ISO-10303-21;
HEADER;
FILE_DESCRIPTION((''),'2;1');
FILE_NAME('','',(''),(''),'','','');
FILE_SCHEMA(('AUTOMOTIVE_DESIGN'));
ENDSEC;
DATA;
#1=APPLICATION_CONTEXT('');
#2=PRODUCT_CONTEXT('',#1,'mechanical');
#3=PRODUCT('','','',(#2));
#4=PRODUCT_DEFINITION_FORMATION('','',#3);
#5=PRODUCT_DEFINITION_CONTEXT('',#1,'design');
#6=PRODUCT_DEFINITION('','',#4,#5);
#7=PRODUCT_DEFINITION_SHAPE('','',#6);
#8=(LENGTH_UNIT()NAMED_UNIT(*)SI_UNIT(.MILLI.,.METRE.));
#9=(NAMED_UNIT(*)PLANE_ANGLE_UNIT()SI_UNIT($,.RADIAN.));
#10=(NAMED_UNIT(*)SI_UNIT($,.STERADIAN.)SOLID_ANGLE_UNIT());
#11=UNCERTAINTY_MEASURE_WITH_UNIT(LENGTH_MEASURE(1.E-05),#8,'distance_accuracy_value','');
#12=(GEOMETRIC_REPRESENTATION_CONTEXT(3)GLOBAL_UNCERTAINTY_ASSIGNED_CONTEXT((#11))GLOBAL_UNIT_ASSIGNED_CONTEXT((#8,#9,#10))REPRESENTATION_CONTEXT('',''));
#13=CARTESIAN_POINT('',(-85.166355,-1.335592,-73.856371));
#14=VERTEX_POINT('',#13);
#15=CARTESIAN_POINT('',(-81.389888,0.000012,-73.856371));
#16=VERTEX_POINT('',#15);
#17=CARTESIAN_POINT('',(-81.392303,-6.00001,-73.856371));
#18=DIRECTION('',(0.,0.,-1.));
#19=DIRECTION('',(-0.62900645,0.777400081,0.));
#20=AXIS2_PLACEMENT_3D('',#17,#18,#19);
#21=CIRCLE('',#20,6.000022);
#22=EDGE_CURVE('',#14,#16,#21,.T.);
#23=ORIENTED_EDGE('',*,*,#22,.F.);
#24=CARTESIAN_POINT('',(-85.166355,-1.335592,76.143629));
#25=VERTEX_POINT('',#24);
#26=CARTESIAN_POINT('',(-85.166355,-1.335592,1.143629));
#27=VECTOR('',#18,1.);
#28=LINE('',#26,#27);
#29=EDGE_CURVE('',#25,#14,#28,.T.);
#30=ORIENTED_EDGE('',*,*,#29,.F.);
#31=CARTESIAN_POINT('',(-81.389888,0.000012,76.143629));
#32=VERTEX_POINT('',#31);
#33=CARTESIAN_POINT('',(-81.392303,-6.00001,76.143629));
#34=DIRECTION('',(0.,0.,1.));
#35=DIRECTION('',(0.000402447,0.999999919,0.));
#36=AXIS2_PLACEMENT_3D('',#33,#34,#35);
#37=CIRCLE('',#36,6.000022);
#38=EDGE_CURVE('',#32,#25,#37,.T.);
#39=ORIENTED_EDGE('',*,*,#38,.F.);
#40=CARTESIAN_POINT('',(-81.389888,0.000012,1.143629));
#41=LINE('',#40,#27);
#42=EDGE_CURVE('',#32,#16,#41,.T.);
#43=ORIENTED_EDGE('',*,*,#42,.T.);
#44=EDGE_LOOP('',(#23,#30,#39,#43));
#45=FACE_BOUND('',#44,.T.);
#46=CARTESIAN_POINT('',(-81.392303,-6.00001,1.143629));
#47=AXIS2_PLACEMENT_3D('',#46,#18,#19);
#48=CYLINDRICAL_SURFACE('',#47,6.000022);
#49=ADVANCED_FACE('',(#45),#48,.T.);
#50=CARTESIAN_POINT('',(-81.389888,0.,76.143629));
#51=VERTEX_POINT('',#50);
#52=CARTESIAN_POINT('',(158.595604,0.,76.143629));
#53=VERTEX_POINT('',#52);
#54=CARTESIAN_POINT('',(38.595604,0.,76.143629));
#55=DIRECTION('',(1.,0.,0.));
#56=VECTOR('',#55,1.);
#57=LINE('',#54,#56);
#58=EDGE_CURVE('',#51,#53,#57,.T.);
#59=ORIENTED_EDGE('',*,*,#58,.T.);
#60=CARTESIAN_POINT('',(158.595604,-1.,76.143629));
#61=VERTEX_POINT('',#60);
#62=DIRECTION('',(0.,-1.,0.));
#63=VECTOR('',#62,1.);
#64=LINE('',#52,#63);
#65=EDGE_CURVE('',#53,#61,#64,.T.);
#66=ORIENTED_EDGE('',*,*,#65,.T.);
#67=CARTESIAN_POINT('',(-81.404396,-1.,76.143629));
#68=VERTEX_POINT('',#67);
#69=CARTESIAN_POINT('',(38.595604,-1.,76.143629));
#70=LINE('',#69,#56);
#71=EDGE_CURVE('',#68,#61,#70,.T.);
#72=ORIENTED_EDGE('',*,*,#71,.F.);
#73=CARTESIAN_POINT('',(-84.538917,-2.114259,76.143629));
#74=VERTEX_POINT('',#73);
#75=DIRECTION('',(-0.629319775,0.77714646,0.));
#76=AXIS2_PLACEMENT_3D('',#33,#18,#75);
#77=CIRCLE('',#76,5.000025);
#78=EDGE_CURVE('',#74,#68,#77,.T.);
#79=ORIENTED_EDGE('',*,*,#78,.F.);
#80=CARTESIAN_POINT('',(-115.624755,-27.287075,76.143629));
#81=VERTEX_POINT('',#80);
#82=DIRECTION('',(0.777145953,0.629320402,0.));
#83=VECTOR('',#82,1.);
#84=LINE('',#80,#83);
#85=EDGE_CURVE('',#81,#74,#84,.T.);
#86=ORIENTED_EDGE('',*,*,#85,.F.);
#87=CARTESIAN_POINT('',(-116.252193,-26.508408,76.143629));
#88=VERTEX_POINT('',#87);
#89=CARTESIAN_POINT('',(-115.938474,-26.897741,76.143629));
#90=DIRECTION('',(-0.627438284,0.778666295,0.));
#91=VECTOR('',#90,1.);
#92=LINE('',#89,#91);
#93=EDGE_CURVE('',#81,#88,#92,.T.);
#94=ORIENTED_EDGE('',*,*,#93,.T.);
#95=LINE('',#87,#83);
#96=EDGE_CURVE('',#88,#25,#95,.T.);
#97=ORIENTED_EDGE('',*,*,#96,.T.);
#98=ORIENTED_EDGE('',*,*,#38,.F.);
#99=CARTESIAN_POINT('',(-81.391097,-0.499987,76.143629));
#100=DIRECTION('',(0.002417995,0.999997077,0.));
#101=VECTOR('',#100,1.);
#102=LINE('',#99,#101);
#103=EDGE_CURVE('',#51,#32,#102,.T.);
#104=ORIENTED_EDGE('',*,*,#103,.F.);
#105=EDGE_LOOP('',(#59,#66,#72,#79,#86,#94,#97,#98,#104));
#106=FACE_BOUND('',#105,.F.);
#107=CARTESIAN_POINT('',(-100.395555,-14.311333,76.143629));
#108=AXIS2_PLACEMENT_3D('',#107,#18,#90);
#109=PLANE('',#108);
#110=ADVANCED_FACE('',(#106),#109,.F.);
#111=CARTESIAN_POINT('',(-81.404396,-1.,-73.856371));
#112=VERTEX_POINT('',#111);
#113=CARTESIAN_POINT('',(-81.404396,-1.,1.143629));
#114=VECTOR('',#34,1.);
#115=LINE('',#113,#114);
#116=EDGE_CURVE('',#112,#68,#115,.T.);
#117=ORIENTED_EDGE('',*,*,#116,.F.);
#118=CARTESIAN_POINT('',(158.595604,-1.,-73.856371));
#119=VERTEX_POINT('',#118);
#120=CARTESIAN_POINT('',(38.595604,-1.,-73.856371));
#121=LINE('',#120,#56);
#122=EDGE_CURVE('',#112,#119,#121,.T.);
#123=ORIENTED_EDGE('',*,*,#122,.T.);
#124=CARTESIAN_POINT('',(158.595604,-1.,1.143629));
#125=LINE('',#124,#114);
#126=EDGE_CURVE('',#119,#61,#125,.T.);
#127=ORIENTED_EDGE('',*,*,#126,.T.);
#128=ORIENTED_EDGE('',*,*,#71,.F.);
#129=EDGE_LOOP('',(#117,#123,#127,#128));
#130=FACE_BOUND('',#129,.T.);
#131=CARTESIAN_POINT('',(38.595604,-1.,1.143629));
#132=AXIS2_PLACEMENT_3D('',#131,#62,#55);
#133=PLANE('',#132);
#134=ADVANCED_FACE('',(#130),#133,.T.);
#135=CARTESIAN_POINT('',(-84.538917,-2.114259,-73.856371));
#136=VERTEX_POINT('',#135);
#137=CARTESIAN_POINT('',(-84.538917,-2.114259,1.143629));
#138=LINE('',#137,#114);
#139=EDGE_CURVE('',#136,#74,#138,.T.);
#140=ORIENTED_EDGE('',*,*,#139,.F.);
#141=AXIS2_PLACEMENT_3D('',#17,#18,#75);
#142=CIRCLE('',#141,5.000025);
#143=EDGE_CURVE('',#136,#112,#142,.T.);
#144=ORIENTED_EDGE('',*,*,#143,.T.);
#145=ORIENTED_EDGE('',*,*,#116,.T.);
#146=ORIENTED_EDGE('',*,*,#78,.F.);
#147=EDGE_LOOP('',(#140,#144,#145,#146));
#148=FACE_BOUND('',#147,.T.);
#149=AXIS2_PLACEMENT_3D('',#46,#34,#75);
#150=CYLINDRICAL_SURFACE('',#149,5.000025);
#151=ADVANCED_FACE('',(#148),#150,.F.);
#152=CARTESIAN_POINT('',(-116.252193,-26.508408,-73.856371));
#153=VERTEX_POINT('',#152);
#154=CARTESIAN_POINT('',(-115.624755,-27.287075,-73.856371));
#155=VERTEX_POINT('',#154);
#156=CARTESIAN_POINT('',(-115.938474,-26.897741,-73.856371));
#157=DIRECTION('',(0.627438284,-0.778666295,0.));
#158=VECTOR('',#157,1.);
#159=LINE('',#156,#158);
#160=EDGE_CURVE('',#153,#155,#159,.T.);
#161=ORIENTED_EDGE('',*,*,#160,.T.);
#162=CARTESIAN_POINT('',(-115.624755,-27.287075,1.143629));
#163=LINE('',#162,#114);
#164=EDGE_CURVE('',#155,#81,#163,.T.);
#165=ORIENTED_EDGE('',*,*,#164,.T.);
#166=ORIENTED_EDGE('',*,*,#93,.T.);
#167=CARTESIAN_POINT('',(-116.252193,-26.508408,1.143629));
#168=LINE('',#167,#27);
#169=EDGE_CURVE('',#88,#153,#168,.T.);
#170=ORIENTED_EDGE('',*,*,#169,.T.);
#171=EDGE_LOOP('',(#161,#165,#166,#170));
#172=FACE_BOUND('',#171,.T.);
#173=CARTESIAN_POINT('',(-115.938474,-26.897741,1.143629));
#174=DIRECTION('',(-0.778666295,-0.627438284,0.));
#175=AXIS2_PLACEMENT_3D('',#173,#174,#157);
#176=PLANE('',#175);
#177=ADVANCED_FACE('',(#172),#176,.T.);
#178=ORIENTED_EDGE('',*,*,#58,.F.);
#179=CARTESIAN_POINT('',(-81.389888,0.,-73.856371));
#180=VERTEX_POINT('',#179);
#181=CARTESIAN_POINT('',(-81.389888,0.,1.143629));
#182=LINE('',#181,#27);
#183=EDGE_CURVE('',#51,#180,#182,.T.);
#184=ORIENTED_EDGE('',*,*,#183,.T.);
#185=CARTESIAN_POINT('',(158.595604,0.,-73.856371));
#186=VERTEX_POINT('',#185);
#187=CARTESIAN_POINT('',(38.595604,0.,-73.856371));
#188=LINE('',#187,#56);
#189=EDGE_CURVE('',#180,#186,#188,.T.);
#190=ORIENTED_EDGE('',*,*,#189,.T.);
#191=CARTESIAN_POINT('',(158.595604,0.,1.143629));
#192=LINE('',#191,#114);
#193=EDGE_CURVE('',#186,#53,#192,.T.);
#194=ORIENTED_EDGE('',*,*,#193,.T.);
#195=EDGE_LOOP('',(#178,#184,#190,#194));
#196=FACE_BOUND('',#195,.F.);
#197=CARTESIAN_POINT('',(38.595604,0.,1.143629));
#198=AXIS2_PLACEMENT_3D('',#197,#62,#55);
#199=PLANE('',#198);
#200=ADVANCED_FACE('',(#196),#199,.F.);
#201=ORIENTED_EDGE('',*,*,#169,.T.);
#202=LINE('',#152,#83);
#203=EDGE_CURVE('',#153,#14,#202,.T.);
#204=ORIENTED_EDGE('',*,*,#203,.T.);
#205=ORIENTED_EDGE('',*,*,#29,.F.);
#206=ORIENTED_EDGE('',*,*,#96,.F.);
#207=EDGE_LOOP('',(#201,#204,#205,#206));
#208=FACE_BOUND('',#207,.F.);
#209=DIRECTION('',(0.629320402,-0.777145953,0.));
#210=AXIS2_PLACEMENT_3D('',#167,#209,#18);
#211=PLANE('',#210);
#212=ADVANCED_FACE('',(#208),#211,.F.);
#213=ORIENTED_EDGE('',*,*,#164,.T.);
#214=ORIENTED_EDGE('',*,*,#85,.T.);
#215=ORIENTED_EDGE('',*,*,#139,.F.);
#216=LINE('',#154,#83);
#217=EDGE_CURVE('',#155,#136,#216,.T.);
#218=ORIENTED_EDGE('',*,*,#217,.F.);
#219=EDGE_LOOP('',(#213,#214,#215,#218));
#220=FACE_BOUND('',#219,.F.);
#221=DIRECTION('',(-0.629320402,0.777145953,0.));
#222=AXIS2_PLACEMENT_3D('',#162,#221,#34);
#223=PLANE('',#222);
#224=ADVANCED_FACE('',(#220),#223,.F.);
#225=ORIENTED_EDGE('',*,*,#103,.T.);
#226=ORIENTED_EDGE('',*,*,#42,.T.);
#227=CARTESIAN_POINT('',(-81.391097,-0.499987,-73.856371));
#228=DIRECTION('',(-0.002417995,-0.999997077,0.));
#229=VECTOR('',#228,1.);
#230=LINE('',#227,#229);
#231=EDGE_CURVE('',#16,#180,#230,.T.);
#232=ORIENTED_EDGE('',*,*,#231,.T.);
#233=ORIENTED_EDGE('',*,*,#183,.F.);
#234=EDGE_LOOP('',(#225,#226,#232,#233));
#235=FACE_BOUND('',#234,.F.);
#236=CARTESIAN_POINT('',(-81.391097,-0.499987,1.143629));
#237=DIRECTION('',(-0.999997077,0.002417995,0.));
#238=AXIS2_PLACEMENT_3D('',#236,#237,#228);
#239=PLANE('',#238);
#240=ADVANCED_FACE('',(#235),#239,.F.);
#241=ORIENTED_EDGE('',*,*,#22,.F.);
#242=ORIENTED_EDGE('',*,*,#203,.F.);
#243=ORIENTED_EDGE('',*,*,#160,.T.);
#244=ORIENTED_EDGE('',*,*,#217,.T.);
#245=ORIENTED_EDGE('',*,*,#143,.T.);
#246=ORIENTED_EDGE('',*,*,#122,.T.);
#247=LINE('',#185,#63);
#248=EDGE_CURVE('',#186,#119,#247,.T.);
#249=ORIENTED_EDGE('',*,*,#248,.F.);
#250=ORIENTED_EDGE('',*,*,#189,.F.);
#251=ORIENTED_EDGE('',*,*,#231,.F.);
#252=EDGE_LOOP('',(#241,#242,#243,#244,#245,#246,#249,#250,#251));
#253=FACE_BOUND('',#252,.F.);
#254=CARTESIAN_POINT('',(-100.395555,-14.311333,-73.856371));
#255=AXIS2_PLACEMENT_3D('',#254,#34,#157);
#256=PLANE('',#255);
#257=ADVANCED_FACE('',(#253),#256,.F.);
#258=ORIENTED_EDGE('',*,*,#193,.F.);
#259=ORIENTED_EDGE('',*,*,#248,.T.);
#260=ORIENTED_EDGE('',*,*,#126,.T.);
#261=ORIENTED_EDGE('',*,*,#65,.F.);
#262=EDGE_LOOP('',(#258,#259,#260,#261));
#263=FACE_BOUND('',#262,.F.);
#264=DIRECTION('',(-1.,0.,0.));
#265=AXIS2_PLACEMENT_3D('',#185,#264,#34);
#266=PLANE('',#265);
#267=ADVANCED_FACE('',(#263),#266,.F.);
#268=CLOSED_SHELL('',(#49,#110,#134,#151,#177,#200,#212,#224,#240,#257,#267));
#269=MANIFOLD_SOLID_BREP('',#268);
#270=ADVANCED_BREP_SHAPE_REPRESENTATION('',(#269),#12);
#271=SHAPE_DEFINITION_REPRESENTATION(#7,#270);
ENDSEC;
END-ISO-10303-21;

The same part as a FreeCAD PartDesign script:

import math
import FreeCAD as App
import Part
import Sketcher
from FreeCAD import Vector
Q = App.Units.Quantity

doc = App.newDocument("Part")
body = doc.addObject("PartDesign::Body", "Body")

sketch1 = body.newObject("Sketcher::SketchObject", "Sketch")
sketch1.AttachmentSupport = (doc.getObject("XZ_Plane"), [""])
sketch1.MapMode = "FlatFace"
sketch1.addGeometry([
    Part.LineSegment(Vector(-81, 76, 0), Vector(-81, -74, 0)),
    Part.LineSegment(Vector(-81, -74, 0), Vector(159, -74, 0)),
    Part.LineSegment(Vector(159, -74, 0), Vector(159, 76, 0)),
    Part.LineSegment(Vector(159, 76, 0), Vector(-81, 76, 0)),
], False)
sketch1.addConstraint([
    Sketcher.Constraint("Coincident", 0, 2, 1, 1),
    Sketcher.Constraint("Coincident", 1, 2, 2, 1),
    Sketcher.Constraint("Coincident", 2, 2, 3, 1),
    Sketcher.Constraint("Coincident", 3, 2, 0, 1),
    Sketcher.Constraint("Vertical", 0),
    Sketcher.Constraint("Horizontal", 1),
    Sketcher.Constraint("Vertical", 2),
    Sketcher.Constraint("Horizontal", 3),
    Sketcher.Constraint("DistanceX", 1, 1, 1, 2, 240.0),
    Sketcher.Constraint("DistanceY", 0, 2, 0, 1, 150.0),
    Sketcher.Constraint("DistanceY", 0, 2, -1, 1, 73.856371),
    Sketcher.Constraint("DistanceX", 0, 2, -1, 1, 81.404396),
])
pad1 = body.newObject("PartDesign::Pad", "Pad")
pad1.Profile = sketch1
pad1.Length = 1

sketch2 = body.newObject("Sketcher::SketchObject", "Sketch001")
sketch2.AttachmentSupport = (doc.getObject("YZ_Plane"), [""])
sketch2.MapMode = "FlatFace"
sketch2.AttachmentOffset = App.Placement(Vector(0, 0, -81.404396), App.Rotation())
sketch2.addGeometry([
    Part.LineSegment(Vector(0, 76.1, 0), Vector(0, -73.9, 0)),
    Part.LineSegment(Vector(0, -73.9, 0), Vector(-1, -73.9, 0)),
    Part.LineSegment(Vector(-1, -73.9, 0), Vector(-1, 76.1, 0)),
    Part.LineSegment(Vector(-1, 76.1, 0), Vector(0, 76.1, 0)),
], False)
sketch2.addConstraint([
    Sketcher.Constraint("Coincident", 0, 2, 1, 1),
    Sketcher.Constraint("Coincident", 1, 2, 2, 1),
    Sketcher.Constraint("Coincident", 2, 2, 3, 1),
    Sketcher.Constraint("Coincident", 3, 2, 0, 1),
    Sketcher.Constraint("Vertical", 0),
    Sketcher.Constraint("Horizontal", 1),
    Sketcher.Constraint("Vertical", 2),
    Sketcher.Constraint("Horizontal", 3),
    Sketcher.Constraint("PointOnObject", 0, 2, -2),
    Sketcher.Constraint("DistanceX", 1, 2, 1, 1, 1.0),
    Sketcher.Constraint("DistanceY", 0, 2, 0, 1, 150.0),
    Sketcher.Constraint("DistanceY", 0, 2, -1, 1, 73.856371),
])

sketch3 = body.newObject("Sketcher::SketchObject", "Sketch002")
sketch3.AttachmentSupport = (doc.getObject("XY_Plane"), [""])
sketch3.MapMode = "FlatFace"
sketch3.AttachmentOffset = App.Placement(Vector(0, 0, -73.856371), App.Rotation())
sketch3.addGeometry([
    Part.LineSegment(Vector(-115.6, -27.3, 0), Vector(-84.5, -2.1, 0)),
    Part.ArcOfCircle(Part.Circle(Vector(-81.4, -6, 0), Vector(0, 0, 1), 5), math.radians(90), math.radians(129)),
], False)
sketch3.addConstraint([
    Sketcher.Constraint("Tangent", 0, 2, 1, 2),
    Sketcher.Constraint("Angle", 0, Q("39.000001 deg")),
    Sketcher.Constraint("Distance", 0, 40.0),
    Sketcher.Constraint("DistanceY", 1, 1, -1, 1, 1.0),
    Sketcher.Constraint("Radius", 1, 5.00001),
    Sketcher.Constraint("DistanceX", 0, 2, -1, 1, 84.538908),
    Sketcher.Constraint("DistanceX", 0, 1, 1, 1, 34.23244),
])
doc.recompute()

additivepipe = body.newObject("PartDesign::AdditivePipe", "AdditivePipe")
additivepipe.Profile = sketch2
additivepipe.Spine = (sketch3, ["Edge1", "Edge2"])

doc.recompute()
